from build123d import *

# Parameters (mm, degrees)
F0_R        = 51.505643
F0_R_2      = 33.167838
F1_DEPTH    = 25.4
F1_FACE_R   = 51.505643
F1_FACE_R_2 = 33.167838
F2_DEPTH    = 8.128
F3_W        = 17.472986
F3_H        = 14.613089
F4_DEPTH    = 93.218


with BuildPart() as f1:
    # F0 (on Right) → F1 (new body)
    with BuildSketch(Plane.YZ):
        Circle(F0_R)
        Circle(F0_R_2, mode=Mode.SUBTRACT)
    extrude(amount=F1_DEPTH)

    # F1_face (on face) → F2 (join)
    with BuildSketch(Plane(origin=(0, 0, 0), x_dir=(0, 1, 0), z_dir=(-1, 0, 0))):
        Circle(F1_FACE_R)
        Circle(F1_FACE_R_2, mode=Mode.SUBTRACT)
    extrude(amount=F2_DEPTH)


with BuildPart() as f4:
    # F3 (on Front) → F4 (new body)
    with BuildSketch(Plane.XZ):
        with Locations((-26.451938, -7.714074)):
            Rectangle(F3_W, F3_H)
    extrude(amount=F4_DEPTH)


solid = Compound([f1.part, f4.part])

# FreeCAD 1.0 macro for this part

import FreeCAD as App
import Part
import Sketcher

V = App.Vector
Q = App.Units.Quantity


def add_polygon(sketch, points):
    """Adds a closed chain of lines whose ends are joined by coincident constraints."""
    first, n = sketch.GeometryCount, len(points)
    for a, b in zip(points, points[1:] + points[:1]):
        sketch.addGeometry(Part.LineSegment(App.Vector(*a, 0), App.Vector(*b, 0)), False)
    for i in range(n):
        sketch.addConstraint(Sketcher.Constraint("Coincident", first + i, 2, first + (i + 1) % n, 1))

doc = App.newDocument("Part")
body = doc.addObject("PartDesign::Body", "Body")

# Sketch on YZ plane
sketch1 = body.newObject("Sketcher::SketchObject", "Sketch")
sketch1.AttachmentSupport = (doc.getObject("YZ_Plane"), [""])
sketch1.MapMode = "FlatFace"
sketch1.addGeometry([
    Part.Circle(V(0, 0, 0), V(0, 0, 1), 52),
    Part.Circle(V(0, 0, 0), V(0, 0, 1), 33),
], False)
sketch1.addConstraint([
    Sketcher.Constraint("Coincident", 0, 3, -1, 1),
    Sketcher.Constraint("Coincident", 1, 3, -1, 1),
    Sketcher.Constraint("Diameter", 0, 103.011286),
    Sketcher.Constraint("Diameter", 1, 66.335676),
])
pad1 = body.newObject("PartDesign::Pad", "Pad")
pad1.Profile = sketch1
pad1.Length = Q("1 in")

# Sketch on YZ plane
sketch2 = body.newObject("Sketcher::SketchObject", "Sketch001")
sketch2.AttachmentSupport = (doc.getObject("YZ_Plane"), [""])
sketch2.MapMode = "FlatFace"
sketch2.addGeometry([
    Part.Circle(V(0, 0, 0), V(0, 0, 1), 52),
    Part.Circle(V(0, 0, 0), V(0, 0, 1), 33),
], False)
sketch2.addConstraint([
    Sketcher.Constraint("Coincident", 0, 3, -1, 1),
    Sketcher.Constraint("Coincident", 1, 3, -1, 1),
    Sketcher.Constraint("Diameter", 0, 103.011286),
    Sketcher.Constraint("Diameter", 1, 66.335676),
])
pad2 = body.newObject("PartDesign::Pad", "Pad001")
pad2.Profile = sketch2
pad2.Length = Q("0.32 in")
pad2.Reversed = True
body2 = doc.addObject("PartDesign::Body", "Body001")

# Sketch on XZ plane
sketch3 = body2.newObject("Sketcher::SketchObject", "Sketch002")
sketch3.AttachmentSupport = (doc.getObject("XZ_Plane001"), [""])
sketch3.MapMode = "FlatFace"
add_polygon(sketch3, [(-35, 0), (-35, -15), (-18, -15), (-18, 0)])  # lines 0-3
sketch3.addConstraint([
    Sketcher.Constraint("Vertical", 0),
    Sketcher.Constraint("Horizontal", 1),
    Sketcher.Constraint("Vertical", 2),
    Sketcher.Constraint("Horizontal", 3),
    Sketcher.Constraint("DistanceY", 0, 2, 0, 1, 14.613089),
    Sketcher.Constraint("DistanceX", 1, 1, 1, 2, 17.472986),
    Sketcher.Constraint("DistanceX", 0, 2, -1, 1, 35.188431),
    Sketcher.Constraint("DistanceY", 0, 2, -1, 1, 15.020618),
])
pad3 = body2.newObject("PartDesign::Pad", "Pad002")
pad3.Profile = sketch3
pad3.Length = Q("3.67 in")

doc.recompute()
